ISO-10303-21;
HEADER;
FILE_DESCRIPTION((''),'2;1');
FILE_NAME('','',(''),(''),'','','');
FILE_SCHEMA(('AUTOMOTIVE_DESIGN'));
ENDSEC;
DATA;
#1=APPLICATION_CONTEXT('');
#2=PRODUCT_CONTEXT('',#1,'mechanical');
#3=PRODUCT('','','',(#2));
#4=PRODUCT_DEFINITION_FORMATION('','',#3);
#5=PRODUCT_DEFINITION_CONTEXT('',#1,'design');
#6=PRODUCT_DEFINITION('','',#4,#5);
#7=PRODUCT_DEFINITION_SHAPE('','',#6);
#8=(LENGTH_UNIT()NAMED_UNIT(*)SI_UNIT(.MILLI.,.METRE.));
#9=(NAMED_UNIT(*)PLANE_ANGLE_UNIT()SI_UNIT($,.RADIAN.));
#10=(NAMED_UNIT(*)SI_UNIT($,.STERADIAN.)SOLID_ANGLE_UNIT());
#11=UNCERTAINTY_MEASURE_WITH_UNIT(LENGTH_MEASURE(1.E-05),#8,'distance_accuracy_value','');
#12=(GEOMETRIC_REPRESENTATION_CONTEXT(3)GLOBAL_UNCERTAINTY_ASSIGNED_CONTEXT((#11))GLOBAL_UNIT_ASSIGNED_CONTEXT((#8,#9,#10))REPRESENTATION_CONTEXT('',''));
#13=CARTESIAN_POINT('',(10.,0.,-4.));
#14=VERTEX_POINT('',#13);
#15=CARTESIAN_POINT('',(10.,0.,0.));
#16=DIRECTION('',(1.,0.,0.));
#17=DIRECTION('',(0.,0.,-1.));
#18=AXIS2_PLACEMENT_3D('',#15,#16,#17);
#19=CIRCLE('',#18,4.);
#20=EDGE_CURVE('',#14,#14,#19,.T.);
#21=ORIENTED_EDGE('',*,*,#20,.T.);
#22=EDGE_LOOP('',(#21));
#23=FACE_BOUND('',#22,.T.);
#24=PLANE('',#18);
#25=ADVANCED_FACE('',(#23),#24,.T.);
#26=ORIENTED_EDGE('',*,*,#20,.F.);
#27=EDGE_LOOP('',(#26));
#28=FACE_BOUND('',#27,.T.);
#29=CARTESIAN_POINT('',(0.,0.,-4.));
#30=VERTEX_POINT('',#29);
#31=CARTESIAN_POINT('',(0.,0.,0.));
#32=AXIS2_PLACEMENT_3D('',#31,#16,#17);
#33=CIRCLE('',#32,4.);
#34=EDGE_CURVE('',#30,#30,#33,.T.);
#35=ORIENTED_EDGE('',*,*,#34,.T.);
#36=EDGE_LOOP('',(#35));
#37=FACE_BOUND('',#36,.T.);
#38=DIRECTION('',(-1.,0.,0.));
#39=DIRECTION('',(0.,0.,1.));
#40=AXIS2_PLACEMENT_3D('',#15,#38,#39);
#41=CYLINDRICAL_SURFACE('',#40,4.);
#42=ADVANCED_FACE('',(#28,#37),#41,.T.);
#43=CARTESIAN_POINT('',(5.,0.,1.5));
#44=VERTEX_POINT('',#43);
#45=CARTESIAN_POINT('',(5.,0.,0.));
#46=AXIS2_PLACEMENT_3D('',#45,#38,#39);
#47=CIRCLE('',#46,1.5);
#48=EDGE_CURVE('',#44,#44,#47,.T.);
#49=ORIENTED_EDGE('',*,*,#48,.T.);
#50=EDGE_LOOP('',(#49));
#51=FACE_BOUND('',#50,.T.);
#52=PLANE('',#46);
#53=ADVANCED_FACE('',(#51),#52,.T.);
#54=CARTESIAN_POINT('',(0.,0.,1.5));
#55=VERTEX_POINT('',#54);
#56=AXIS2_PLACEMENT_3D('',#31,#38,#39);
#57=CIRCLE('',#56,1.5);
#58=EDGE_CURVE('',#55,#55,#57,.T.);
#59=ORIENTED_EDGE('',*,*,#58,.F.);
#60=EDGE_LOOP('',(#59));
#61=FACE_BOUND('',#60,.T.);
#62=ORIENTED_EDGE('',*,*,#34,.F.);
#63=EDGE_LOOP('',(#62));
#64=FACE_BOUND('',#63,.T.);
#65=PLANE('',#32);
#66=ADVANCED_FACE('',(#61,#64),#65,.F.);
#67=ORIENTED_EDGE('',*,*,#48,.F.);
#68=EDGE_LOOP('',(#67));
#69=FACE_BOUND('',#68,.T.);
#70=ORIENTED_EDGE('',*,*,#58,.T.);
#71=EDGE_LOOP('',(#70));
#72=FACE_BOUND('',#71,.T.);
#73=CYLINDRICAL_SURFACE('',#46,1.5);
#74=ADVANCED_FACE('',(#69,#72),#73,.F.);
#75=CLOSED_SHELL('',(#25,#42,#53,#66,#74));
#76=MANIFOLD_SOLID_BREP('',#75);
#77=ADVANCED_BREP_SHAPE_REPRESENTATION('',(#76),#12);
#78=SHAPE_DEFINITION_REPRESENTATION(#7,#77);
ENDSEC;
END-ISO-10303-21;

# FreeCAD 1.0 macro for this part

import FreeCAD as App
import Part
import Sketcher
from FreeCAD import Vector
Q = App.Units.Quantity

doc = App.newDocument("Part")
body = doc.addObject("PartDesign::Body", "Body")

# Sketch on YZ plane
sketch1 = body.newObject("Sketcher::SketchObject", "Sketch")
sketch1.AttachmentSupport = (doc.getObject("YZ_Plane"), [""])
sketch1.MapMode = "FlatFace"
sketch1.addGeometry(Part.Circle(Vector(0, 0, 0), Vector(0, 0, 1), 4), False)
sketch1.addConstraint([
    Sketcher.Constraint("Coincident", 0, 3, -1, 1),
    Sketcher.Constraint("Diameter", 0, Q("8 mm")),
])
pad1 = body.newObject("PartDesign::Pad", "Pad")
pad1.Profile = sketch1
pad1.Length = 10

# Sketch on YZ plane
sketch2 = body.newObject("Sketcher::SketchObject", "Sketch001")
sketch2.AttachmentSupport = (doc.getObject("YZ_Plane"), [""])
sketch2.MapMode = "FlatFace"
sketch2.addGeometry(Part.Circle(Vector(0, 0, 0), Vector(0, 0, 1), 1.5), False)
sketch2.addConstraint([
    Sketcher.Constraint("Coincident", 0, 3, -1, 1),
    Sketcher.Constraint("Diameter", 0, Q("3 mm")),
])
pocket1 = body.newObject("PartDesign::Pocket", "Pocket")
pocket1.Profile = sketch2
pocket1.Length = 5
pocket1.Reversed = True

doc.recompute()
